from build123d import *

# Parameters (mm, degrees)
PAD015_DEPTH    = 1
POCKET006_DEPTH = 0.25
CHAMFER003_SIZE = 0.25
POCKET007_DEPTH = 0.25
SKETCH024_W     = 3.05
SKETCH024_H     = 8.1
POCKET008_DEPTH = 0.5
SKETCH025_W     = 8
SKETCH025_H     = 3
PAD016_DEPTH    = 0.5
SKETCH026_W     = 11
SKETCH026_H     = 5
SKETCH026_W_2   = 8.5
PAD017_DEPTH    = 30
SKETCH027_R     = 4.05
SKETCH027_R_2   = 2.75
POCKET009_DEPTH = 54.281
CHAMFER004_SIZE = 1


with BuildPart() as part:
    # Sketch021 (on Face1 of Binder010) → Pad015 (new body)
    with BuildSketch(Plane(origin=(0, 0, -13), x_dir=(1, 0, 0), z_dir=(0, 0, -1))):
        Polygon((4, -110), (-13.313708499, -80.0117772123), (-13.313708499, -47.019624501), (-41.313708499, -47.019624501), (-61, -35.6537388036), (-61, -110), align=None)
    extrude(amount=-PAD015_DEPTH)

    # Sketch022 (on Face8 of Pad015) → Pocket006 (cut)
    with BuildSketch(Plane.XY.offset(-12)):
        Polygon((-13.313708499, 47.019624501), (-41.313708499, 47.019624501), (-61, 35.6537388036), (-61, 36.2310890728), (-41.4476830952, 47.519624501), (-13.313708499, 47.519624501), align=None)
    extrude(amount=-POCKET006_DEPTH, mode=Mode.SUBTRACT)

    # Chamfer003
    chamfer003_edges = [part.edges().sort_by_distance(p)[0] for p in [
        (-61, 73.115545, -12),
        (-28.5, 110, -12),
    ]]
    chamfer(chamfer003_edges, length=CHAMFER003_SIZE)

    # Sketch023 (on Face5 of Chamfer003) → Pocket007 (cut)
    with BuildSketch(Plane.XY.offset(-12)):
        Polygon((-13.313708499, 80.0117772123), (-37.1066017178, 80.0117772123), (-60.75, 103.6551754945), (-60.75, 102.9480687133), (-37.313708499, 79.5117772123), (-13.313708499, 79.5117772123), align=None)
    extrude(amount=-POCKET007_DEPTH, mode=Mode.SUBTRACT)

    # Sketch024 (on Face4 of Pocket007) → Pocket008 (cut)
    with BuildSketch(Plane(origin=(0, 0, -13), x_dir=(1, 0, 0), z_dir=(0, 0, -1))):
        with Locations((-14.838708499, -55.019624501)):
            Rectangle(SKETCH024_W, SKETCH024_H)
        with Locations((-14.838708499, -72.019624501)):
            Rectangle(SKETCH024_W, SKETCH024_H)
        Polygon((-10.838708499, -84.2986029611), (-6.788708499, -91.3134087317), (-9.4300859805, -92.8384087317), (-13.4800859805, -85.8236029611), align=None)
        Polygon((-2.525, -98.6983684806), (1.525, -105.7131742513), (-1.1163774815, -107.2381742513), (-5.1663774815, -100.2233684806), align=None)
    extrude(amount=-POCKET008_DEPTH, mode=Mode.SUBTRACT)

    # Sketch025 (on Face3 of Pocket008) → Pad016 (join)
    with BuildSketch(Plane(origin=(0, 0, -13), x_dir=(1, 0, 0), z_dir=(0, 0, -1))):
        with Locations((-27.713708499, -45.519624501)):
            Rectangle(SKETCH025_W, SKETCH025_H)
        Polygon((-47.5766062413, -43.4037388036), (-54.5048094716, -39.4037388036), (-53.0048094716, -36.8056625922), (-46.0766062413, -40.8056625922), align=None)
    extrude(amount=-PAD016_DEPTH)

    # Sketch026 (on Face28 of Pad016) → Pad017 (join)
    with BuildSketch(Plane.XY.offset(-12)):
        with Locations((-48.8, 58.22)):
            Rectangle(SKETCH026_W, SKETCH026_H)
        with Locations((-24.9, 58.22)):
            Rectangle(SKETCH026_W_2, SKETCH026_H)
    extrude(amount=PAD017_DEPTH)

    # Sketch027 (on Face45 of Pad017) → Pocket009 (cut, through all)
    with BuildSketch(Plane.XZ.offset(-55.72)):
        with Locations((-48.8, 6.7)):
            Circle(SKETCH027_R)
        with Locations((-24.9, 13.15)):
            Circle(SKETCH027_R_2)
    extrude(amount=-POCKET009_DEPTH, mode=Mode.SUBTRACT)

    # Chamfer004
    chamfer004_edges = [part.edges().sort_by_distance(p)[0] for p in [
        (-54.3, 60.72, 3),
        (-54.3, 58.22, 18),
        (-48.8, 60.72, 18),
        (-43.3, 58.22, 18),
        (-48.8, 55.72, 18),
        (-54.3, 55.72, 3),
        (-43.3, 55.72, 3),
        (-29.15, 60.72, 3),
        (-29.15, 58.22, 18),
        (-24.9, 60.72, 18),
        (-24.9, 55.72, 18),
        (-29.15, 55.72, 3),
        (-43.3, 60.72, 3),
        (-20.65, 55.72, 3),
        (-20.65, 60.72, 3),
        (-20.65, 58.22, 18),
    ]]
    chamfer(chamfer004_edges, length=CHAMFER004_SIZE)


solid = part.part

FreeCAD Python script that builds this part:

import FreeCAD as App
import Part
import Sketcher
Q = App.Units.Quantity


def edges_at(feature, points):
    """Names of the edges that pass closest to the given points."""
    edges = feature.Shape.Edges
    near = lambda p: min(range(len(edges)), key=lambda i: edges[i].distToShape(Part.Vertex(*p))[0])
    return sorted({f"Edge{near(p) + 1}" for p in points})


def add_polygon(sketch, points):
    """Adds a closed chain of lines whose ends are joined by coincident constraints."""
    first, n = sketch.GeometryCount, len(points)
    for a, b in zip(points, points[1:] + points[:1]):
        sketch.addGeometry(Part.LineSegment(App.Vector(*a, 0), App.Vector(*b, 0)), False)
    for i in range(n):
        sketch.addConstraint(Sketcher.Constraint("Coincident", first + i, 2, first + (i + 1) % n, 1))

doc = App.newDocument("Part")
body = doc.addObject("PartDesign::Body", "Body")

sketch1 = body.newObject("Sketcher::SketchObject", "Sketch")
sketch1.AttachmentSupport = (doc.getObject("XY_Plane"), [""])
sketch1.MapMode = "FlatFace"
sketch1.AttachmentOffset = App.Placement(App.Vector(0, 0, -13), App.Rotation())
add_polygon(sketch1, [(4, 110), (-13, 80), (-13, 47), (-41, 47), (-61, 36), (-61, 110)])
sketch1.addConstraint([
    Sketcher.Constraint("Vertical", 1),
    Sketcher.Constraint("Horizontal", 2),
    Sketcher.Constraint("Vertical", 4),
    Sketcher.Constraint("Horizontal", 5),
    Sketcher.Constraint("DistanceX", 2, 2, 2, 1, Q("28 mm")),
    Sketcher.Constraint("DistanceX", 5, 1, 5, 2, Q("65 mm")),
    Sketcher.Constraint("Angle", 0, Q("-120 deg")),
    Sketcher.Constraint("Angle", 3, Q("-150 deg")),
    Sketcher.Constraint("DistanceX", 3, 2, -1, 1, Q("61 mm")),
    Sketcher.Constraint("DistanceY", -1, 1, 4, 2, Q("110 mm")),
    Sketcher.Constraint("DistanceY", 4, 1, 4, 2, Q("74.346261 mm")),
    Sketcher.Constraint("Distance", 3, Q("22.731771 mm")),
])
pad1 = body.newObject("PartDesign::Pad", "Pad")
pad1.Profile = sketch1
pad1.Length = 1

sketch2 = body.newObject("Sketcher::SketchObject", "Sketch001")
sketch2.AttachmentSupport = (doc.getObject("XY_Plane"), [""])
sketch2.MapMode = "FlatFace"
sketch2.AttachmentOffset = App.Placement(App.Vector(0, 0, -12), App.Rotation())
add_polygon(sketch2, [(-41.3, 47), (-13.3, 47), (-13.3, 47.5), (-41.4, 47.5), (-61, 36.2), (-61, 35.7)])
sketch2.addConstraint([
    Sketcher.Constraint("Horizontal", 0),
    Sketcher.Constraint("Vertical", 1),
    Sketcher.Constraint("Horizontal", 2),
    Sketcher.Constraint("Vertical", 4),
    Sketcher.Constraint("Parallel", 3, 5),
    Sketcher.Constraint("DistanceX", 0, 1, 0, 2, Q("28 mm")),
    Sketcher.Constraint("Angle", 3, Q("-150 deg")),
    Sketcher.Constraint("DistanceY", 1, 1, 1, 2, Q("0.5 mm")),
    Sketcher.Constraint("DistanceX", 3, 2, -1, 1, Q("61 mm")),
    Sketcher.Constraint("DistanceY", 4, 2, 4, 1, Q("0.57735 mm")),
    Sketcher.Constraint("Distance", 3, Q("22.577071 mm")),
    Sketcher.Constraint("DistanceY", -1, 1, 3, 2, Q("36.231089 mm")),
])
pocket1 = body.newObject("PartDesign::Pocket", "Pocket")
pocket1.Profile = sketch2
pocket1.Length = 0.25
doc.recompute()

chamfer = body.newObject("PartDesign::Chamfer", "Chamfer")
chamfer.Base = (pocket1, edges_at(pocket1, [(-61, 73.116, -12), (-28.5, 110, -12)]))
chamfer.Size = 0.25

sketch3 = body.newObject("Sketcher::SketchObject", "Sketch002")
sketch3.AttachmentSupport = (doc.getObject("XY_Plane"), [""])
sketch3.MapMode = "FlatFace"
sketch3.AttachmentOffset = App.Placement(App.Vector(0, 0, -12), App.Rotation())
add_polygon(sketch3, [(-13.3, 80), (-37.1, 80), (-60.8, 103.7), (-60.8, 102.9), (-37.3, 79.5), (-13.3, 79.5)])
sketch3.addConstraint([
    Sketcher.Constraint("Horizontal", 0),
    Sketcher.Constraint("Vertical", 2),
    Sketcher.Constraint("Horizontal", 4),
    Sketcher.Constraint("Vertical", 5),
    Sketcher.Constraint("Parallel", 1, 3),
    Sketcher.Constraint("DistanceX", 4, 1, 4, 2, Q("24 mm")),
    Sketcher.Constraint("Angle", 1, Q("135 deg")),
    Sketcher.Constraint("DistanceY", 5, 1, 5, 2, Q("0.5 mm")),
    Sketcher.Constraint("DistanceX", 1, 2, -1, 1, Q("60.75 mm")),
    Sketcher.Constraint("DistanceX", 0, 2, -1, 1, Q("37.106602 mm")),
    Sketcher.Constraint("Distance", 3, Q("33.143921 mm")),
    Sketcher.Constraint("DistanceY", -1, 1, 2, 2, Q("102.948069 mm")),
])
pocket2 = body.newObject("PartDesign::Pocket", "Pocket001")
pocket2.Profile = sketch3
pocket2.Length = 0.25

sketch4 = body.newObject("Sketcher::SketchObject", "Sketch003")
sketch4.AttachmentSupport = (doc.getObject("XY_Plane"), [""])
sketch4.MapMode = "FlatFace"
sketch4.AttachmentOffset = App.Placement(App.Vector(0, 0, -13), App.Rotation())
add_polygon(sketch4, [(-16.4, 51), (-16.4, 59.1), (-13.3, 59.1), (-13.3, 51)])
add_polygon(sketch4, [(-16.4, 68), (-16.4, 76.1), (-13.3, 76.1), (-13.3, 68)])
add_polygon(sketch4, [(-6.8, 91.3), (-10.8, 84.3), (-13.5, 85.8), (-9.4, 92.8)])
add_polygon(sketch4, [(1.5, 105.7), (-2.5, 98.7), (-5.2, 100.2), (-1.1, 107.2)])
sketch4.addConstraint([
    Sketcher.Constraint("Vertical", 0),
    Sketcher.Constraint("Horizontal", 1),
    Sketcher.Constraint("Vertical", 2),
    Sketcher.Constraint("Horizontal", 3),
    Sketcher.Constraint("Vertical", 4),
    Sketcher.Constraint("Horizontal", 5),
    Sketcher.Constraint("Vertical", 6),
    Sketcher.Constraint("Horizontal", 7),
    Sketcher.Constraint("Perpendicular", 8, 9),
    Sketcher.Constraint("Perpendicular", 9, 10),
    Sketcher.Constraint("Perpendicular", 10, 11),
    Sketcher.Constraint("Perpendicular", 11, 12),
    Sketcher.Constraint("Perpendicular", 12, 13),
    Sketcher.Constraint("Perpendicular", 13, 14),
    Sketcher.Constraint("Perpendicular", 14, 15),
    Sketcher.Constraint("Vertical", 3, 2, 4, 2),
    Sketcher.Constraint("Vertical", 2, 2, 5, 2),
    Sketcher.Constraint("Equal", 2, 4),
    Sketcher.Constraint("Equal", 10, 12),
    Sketcher.Constraint("Equal", 11, 13),
    Sketcher.Constraint("Angle", 8, Q("-120 deg")),
    Sketcher.Constraint("DistanceY", 0, 1, 0, 2, Q("8.1 mm")),
    Sketcher.Constraint("DistanceY", 0, 2, 4, 2, Q("17 mm")),
    Sketcher.Constraint("Distance", 8, Q("8.1 mm")),
    Sketcher.Constraint("DistanceX", 1, 1, 1, 2, Q("3.05 mm")),
    Sketcher.Constraint("Distance", 9, Q("3.05 mm")),
    Sketcher.Constraint("DistanceX", 12, 2, -1, 1, Q("2.525 mm")),
    Sketcher.Constraint("DistanceX", 5, 2, 8, 2, Q("2.475 mm")),
    Sketcher.Constraint("DistanceX", 0, 2, -1, 1, Q("16.363708 mm")),
    Sketcher.Constraint("DistanceY", -1, 1, 10, 2, Q("92.838409 mm")),
    Sketcher.Constraint("DistanceY", -1, 1, 12, 2, Q("98.698368 mm")),
    Sketcher.Constraint("DistanceY", 5, 2, 8, 2, Q("8.228978 mm")),
])
pocket3 = body.newObject("PartDesign::Pocket", "Pocket002")
pocket3.Profile = sketch4
pocket3.Length = 0.5
pocket3.Reversed = True

sketch5 = body.newObject("Sketcher::SketchObject", "Sketch004")
sketch5.AttachmentSupport = (doc.getObject("XY_Plane"), [""])
sketch5.MapMode = "FlatFace"
sketch5.AttachmentOffset = App.Placement(App.Vector(0, 0, -13), App.Rotation())
add_polygon(sketch5, [(-31.7, 44), (-31.7, 47), (-23.7, 47), (-23.7, 44)])
add_polygon(sketch5, [(-54.5, 39.4), (-47.6, 43.4), (-46.1, 40.8), (-53, 36.8)])
sketch5.addConstraint([
    Sketcher.Constraint("Vertical", 0),
    Sketcher.Constraint("Horizontal", 1),
    Sketcher.Constraint("Vertical", 2),
    Sketcher.Constraint("Horizontal", 3),
    Sketcher.Constraint("Perpendicular", 4, 5),
    Sketcher.Constraint("Perpendicular", 5, 6),
    Sketcher.Constraint("Perpendicular", 6, 7),
    Sketcher.Constraint("DistanceX", 1, 1, 1, 2, Q("8 mm")),
    Sketcher.Constraint("DistanceY", 0, 1, 0, 2, Q("3 mm")),
    Sketcher.Constraint("Angle", 4, Q("30 deg")),
    Sketcher.Constraint("Distance", 4, Q("8 mm")),
    Sketcher.Constraint("Distance", 5, Q("3 mm")),
    Sketcher.Constraint("DistanceX", 6, 2, 3, 2, Q("21.291101 mm")),
    Sketcher.Constraint("DistanceX", 0, 2, -1, 1, Q("31.713708 mm")),
    Sketcher.Constraint("DistanceY", -1, 1, 4, 2, Q("43.403739 mm")),
    Sketcher.Constraint("DistanceY", 5, 2, 3, 2, Q("3.213962 mm")),
])
pad2 = body.newObject("PartDesign::Pad", "Pad001")
pad2.Profile = sketch5
pad2.Length = 0.5

sketch6 = body.newObject("Sketcher::SketchObject", "Sketch005")
sketch6.AttachmentSupport = (doc.getObject("XY_Plane"), [""])
sketch6.MapMode = "FlatFace"
sketch6.AttachmentOffset = App.Placement(App.Vector(0, 0, -12), App.Rotation())
add_polygon(sketch6, [(-54, 61), (-54, 56), (-43, 56), (-43, 61)])
add_polygon(sketch6, [(-29, 61), (-29, 56), (-21, 56), (-21, 61)])
sketch6.addConstraint([
    Sketcher.Constraint("Vertical", 0),
    Sketcher.Constraint("Horizontal", 1),
    Sketcher.Constraint("Vertical", 2),
    Sketcher.Constraint("Horizontal", 3),
    Sketcher.Constraint("Vertical", 4),
    Sketcher.Constraint("Horizontal", 5),
    Sketcher.Constraint("Vertical", 6),
    Sketcher.Constraint("Horizontal", 7),
    Sketcher.Constraint("Horizontal", 1, 2, 4, 2),
    Sketcher.Constraint("Horizontal", 3, 2, 6, 2),
    Sketcher.Constraint("DistanceX", 1, 1, 1, 2, Q("11 mm")),
    Sketcher.Constraint("DistanceY", 0, 2, 0, 1, Q("5 mm")),
    Sketcher.Constraint("DistanceX", 5, 1, 5, 2, Q("8.5 mm")),
    Sketcher.Constraint("DistanceX", 0, 2, -1, 1, Q("54.3 mm")),
    Sketcher.Constraint("DistanceY", -1, 1, 0, 2, Q("55.72 mm")),
    Sketcher.Constraint("DistanceX", 4, 2, -1, 1, Q("29.15 mm")),
])
pad3 = body.newObject("PartDesign::Pad", "Pad002")
pad3.Profile = sketch6
pad3.Length = 30

sketch7 = body.newObject("Sketcher::SketchObject", "Sketch006")
sketch7.AttachmentSupport = (doc.getObject("XZ_Plane"), [""])
sketch7.MapMode = "FlatFace"
sketch7.AttachmentOffset = App.Placement(App.Vector(0, 0, -55.72), App.Rotation())
sketch7.addGeometry([
    Part.Circle(App.Vector(-48.8, 6.7, 0), App.Vector(0, 0, 1), 4),
    Part.Circle(App.Vector(-24.9, 13.2, 0), App.Vector(0, 0, 1), 2.8),
], False)
sketch7.addConstraint([
    Sketcher.Constraint("Diameter", 0, Q("8.1 mm")),
    Sketcher.Constraint("Diameter", 1, Q("5.5 mm")),
    Sketcher.Constraint("DistanceX", 0, 3, -1, 1, Q("48.8 mm")),
    Sketcher.Constraint("DistanceY", -1, 1, 0, 3, Q("6.7 mm")),
    Sketcher.Constraint("DistanceX", 1, 3, -1, 1, Q("24.9 mm")),
    Sketcher.Constraint("DistanceY", -1, 1, 1, 3, Q("13.15 mm")),
])
pocket4 = body.newObject("PartDesign::Pocket", "Pocket003")
pocket4.Profile = sketch7
pocket4.Type = "ThroughAll"
doc.recompute()

chamfer2 = body.newObject("PartDesign::Chamfer", "Chamfer001")
chamfer2.Base = (pocket4, edges_at(pocket4, [
    (-54.3, 60.72, 3),
    (-54.3, 58.22, 18),
    (-48.8, 60.72, 18),
    (-43.3, 58.22, 18),
    (-48.8, 55.72, 18),
    (-54.3, 55.72, 3),
    (-43.3, 55.72, 3),
    (-29.15, 60.72, 3),
    (-29.15, 58.22, 18),
    (-24.9, 60.72, 18),
    (-24.9, 55.72, 18),
    (-29.15, 55.72, 3),
    (-43.3, 60.72, 3),
    (-20.65, 55.72, 3),
    (-20.65, 60.72, 3),
    (-20.65, 58.22, 18),
]))
chamfer2.Size = 1

doc.recompute()
